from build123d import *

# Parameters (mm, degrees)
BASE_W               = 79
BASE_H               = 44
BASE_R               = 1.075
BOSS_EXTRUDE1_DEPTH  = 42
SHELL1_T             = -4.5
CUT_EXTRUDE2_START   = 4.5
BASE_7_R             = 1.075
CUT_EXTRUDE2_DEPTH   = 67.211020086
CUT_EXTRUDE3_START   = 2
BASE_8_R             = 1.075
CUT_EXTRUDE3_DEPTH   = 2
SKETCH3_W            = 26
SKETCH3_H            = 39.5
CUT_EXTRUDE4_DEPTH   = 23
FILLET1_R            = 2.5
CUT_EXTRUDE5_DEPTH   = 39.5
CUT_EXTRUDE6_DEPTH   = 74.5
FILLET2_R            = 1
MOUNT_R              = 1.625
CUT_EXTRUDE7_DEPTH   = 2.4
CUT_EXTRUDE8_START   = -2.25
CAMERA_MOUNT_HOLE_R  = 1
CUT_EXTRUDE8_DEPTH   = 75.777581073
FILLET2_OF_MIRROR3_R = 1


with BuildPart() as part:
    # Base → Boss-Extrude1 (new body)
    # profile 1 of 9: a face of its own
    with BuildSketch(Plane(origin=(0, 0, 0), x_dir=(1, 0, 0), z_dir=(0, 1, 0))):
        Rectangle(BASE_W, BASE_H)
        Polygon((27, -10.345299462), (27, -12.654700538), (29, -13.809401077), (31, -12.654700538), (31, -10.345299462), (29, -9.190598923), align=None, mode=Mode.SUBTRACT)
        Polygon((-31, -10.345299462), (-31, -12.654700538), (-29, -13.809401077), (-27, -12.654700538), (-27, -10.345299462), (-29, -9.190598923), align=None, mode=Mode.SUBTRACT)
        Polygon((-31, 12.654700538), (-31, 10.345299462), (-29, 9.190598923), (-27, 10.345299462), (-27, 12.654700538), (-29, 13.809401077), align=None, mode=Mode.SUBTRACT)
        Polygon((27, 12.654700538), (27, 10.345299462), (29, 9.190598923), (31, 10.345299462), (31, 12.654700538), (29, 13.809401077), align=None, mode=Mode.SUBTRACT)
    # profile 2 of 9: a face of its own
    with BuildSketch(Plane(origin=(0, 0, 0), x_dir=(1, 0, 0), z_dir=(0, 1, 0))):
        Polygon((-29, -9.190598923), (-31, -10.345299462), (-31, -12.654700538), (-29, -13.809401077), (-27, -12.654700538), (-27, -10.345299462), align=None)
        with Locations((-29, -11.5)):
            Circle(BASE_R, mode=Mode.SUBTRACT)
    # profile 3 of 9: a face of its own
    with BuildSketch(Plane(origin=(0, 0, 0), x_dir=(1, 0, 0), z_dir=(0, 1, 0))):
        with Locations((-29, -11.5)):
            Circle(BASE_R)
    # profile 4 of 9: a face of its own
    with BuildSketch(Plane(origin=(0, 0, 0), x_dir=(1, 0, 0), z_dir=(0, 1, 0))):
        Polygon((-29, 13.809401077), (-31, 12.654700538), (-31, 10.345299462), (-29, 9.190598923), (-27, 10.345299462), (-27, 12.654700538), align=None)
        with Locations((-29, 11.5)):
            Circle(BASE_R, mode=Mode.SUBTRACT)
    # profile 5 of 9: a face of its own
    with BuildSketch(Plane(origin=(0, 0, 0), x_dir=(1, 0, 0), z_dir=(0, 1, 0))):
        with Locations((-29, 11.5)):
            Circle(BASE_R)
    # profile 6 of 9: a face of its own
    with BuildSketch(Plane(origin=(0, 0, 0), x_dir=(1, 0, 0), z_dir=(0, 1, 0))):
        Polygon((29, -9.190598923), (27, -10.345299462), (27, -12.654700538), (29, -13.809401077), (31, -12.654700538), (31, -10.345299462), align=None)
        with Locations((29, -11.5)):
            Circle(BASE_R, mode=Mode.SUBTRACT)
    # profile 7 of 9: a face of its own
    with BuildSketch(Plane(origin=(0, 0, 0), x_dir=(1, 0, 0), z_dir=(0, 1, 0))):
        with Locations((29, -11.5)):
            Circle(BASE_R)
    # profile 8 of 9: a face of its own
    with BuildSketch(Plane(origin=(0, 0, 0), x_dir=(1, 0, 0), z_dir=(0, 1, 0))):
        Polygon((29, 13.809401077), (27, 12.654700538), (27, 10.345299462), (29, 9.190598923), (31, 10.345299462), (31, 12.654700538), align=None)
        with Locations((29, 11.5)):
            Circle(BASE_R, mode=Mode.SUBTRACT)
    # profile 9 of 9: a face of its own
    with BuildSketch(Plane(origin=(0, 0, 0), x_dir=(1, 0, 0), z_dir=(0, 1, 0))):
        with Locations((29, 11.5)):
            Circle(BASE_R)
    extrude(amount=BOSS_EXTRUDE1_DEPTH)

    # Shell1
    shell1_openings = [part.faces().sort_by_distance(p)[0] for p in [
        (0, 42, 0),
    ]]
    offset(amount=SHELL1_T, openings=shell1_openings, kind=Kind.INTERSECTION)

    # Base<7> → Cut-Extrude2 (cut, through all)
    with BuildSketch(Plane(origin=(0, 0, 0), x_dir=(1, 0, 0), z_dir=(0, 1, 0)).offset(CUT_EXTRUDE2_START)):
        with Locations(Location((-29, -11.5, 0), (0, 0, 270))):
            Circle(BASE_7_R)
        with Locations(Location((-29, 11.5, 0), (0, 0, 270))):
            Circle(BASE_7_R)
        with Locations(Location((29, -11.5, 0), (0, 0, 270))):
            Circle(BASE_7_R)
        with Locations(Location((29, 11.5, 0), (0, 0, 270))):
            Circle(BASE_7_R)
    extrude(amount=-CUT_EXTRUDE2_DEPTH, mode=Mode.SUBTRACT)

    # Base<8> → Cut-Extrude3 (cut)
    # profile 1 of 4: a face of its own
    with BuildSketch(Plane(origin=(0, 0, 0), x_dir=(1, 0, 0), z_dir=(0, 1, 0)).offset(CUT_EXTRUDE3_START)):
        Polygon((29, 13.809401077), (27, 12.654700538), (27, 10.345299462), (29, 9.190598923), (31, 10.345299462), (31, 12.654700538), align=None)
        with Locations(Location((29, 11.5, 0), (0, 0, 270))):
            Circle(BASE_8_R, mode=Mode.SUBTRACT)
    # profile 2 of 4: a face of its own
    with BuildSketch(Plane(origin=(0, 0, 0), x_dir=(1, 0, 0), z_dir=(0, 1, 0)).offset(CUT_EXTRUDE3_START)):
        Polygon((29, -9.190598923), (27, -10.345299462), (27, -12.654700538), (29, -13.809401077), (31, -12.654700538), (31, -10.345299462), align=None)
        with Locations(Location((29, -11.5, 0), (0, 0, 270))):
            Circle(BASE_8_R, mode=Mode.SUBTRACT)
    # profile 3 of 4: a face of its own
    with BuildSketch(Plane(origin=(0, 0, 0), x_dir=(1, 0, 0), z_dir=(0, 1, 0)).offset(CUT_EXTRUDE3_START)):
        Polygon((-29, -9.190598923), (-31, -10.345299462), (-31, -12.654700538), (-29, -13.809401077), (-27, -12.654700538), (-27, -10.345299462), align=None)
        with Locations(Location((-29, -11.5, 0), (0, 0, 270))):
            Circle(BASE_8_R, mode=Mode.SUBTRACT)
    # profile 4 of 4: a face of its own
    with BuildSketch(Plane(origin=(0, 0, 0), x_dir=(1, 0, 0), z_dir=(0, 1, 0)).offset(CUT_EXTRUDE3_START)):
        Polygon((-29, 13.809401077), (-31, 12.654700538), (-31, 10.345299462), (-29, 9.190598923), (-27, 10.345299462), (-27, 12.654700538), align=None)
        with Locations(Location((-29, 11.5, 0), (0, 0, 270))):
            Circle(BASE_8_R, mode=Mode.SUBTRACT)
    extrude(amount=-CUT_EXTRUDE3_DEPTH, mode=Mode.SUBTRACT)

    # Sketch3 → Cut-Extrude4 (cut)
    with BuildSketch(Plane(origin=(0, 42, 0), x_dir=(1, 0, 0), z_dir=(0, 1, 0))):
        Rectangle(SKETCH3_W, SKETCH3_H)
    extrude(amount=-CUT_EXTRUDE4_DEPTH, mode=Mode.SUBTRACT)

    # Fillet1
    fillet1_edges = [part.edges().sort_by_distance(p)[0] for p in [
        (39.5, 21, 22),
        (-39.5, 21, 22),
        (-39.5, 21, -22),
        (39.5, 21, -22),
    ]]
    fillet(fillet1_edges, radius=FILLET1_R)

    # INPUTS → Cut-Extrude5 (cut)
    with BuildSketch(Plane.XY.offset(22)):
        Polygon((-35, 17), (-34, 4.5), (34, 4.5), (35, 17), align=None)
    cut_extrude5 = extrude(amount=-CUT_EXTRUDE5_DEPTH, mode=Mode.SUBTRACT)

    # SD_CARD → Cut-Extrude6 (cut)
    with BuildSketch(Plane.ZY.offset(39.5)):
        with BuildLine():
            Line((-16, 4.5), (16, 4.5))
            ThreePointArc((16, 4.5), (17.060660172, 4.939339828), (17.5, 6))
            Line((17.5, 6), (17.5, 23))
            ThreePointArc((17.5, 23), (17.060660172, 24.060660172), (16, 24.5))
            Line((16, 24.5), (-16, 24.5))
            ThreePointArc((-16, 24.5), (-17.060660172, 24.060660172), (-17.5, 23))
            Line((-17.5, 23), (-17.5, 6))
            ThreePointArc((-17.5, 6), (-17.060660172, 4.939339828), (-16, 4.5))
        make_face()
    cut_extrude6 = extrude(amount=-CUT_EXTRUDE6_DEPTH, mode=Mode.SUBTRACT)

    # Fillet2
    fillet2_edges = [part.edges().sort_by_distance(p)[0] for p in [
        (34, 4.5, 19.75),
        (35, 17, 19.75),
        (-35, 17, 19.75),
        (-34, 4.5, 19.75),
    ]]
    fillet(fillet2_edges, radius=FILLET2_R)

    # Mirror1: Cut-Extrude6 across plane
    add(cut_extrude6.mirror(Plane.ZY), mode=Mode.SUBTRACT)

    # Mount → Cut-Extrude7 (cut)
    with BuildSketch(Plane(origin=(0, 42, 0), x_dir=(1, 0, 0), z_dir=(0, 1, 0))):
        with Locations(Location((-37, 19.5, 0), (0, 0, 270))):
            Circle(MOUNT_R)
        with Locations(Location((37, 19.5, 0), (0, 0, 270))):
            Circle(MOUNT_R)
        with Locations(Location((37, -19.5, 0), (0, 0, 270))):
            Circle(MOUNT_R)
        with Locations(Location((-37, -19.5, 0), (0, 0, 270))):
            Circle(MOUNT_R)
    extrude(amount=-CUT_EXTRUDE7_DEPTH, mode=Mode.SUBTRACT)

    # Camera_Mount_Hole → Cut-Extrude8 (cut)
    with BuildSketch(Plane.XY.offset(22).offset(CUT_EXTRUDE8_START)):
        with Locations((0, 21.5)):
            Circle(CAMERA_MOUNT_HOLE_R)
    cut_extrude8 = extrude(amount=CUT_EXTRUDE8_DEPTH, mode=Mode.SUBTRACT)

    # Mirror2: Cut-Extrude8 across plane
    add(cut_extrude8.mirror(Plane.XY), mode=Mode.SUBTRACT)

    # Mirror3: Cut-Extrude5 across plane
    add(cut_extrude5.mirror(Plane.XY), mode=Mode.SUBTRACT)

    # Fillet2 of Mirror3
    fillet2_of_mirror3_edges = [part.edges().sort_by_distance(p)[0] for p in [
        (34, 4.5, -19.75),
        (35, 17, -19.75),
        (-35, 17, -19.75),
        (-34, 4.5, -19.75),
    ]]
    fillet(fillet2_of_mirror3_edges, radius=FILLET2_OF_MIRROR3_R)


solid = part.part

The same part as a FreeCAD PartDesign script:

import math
import FreeCAD as App
import Part
import Sketcher
from FreeCAD import Vector
Q = App.Units.Quantity


def edges_at(feature, points):
    """Names of the edges that pass closest to the given points."""
    edges = feature.Shape.Edges
    near = lambda p: min(range(len(edges)), key=lambda i: edges[i].distToShape(Part.Vertex(*p))[0])
    return sorted({f"Edge{near(p) + 1}" for p in points})


def faces_at(feature, points):
    """Names of the faces that lie closest to the given points."""
    faces = feature.Shape.Faces
    near = lambda p: min(range(len(faces)), key=lambda i: faces[i].distToShape(Part.Vertex(*p))[0])
    return sorted({f"Face{near(p) + 1}" for p in points})

doc = App.newDocument("Part")
params = doc.addObject("Spreadsheet::Sheet", "Params")
for row, (alias, value) in enumerate([
    ("sketch1_width", "79 mm"),
    ("sketch1_height", "44 mm"),
    ("pad1_length", "42 mm"),
    ("thickness_wall", "4.5 mm"),
    ("sketch2_diameter", "2.15 mm"),
    ("sketch3_diameter", "2.15 mm"),
    ("pocket2_length", "2 mm"),
    ("sketch4_width", "26 mm"),
    ("sketch4_height", "39.5 mm"),
    ("pocket3_length", "23 mm"),
    ("fillet_radius", "2.5 mm"),
    ("sketch5_width", "68 mm"),
    ("sketch5_width2", "70 mm"),
    ("pocket4_length", "39.5 mm"),
    ("sketch6_radius", "1.5 mm"),
    ("sketch6_width", "17 mm"),
    ("sketch6_height", "32 mm"),
    ("pocket5_length", "74.5 mm"),
    ("fillet2_radius", "1 mm"),
    ("sketch7_diameter", "3.25 mm"),
    ("pocket6_length", "2.4 mm"),
    ("sketch8_diameter", "2 mm"),
    ("pocket7_length", "75.777581 mm"),
    ("fillet3_radius", "1 mm"),
], start=1):
    params.set(f"A{row}", alias)
    params.set(f"B{row}", "=" + value)
    params.setAlias(f"B{row}", alias)

body = doc.addObject("PartDesign::Body", "Body")

sketch1 = body.newObject("Sketcher::SketchObject", "Sketch")
sketch1.AttachmentSupport = (doc.getObject("XZ_Plane"), [""])
sketch1.MapMode = "FlatFace"
sketch1.addGeometry([
    Part.LineSegment(Vector(-40, -22, 0), Vector(-40, 22, 0)),
    Part.LineSegment(Vector(-40, 22, 0), Vector(40, 22, 0)),
    Part.LineSegment(Vector(40, 22, 0), Vector(40, -22, 0)),
    Part.LineSegment(Vector(40, -22, 0), Vector(-40, -22, 0)),
], False)
sketch1.addConstraint([
    Sketcher.Constraint("Coincident", 0, 2, 1, 1),
    Sketcher.Constraint("Coincident", 1, 2, 2, 1),
    Sketcher.Constraint("Coincident", 2, 2, 3, 1),
    Sketcher.Constraint("Coincident", 3, 2, 0, 1),
    Sketcher.Constraint("Vertical", 0),
    Sketcher.Constraint("Horizontal", 1),
    Sketcher.Constraint("Vertical", 2),
    Sketcher.Constraint("Horizontal", 3),
    Sketcher.Constraint("Symmetric", 0, 2, 2, 2, -1, 1),
    Sketcher.Constraint("DistanceX", 1, 1, 1, 2, 79.0),
    Sketcher.Constraint("DistanceY", 0, 1, 0, 2, 44.0),
])
sketch1.setExpression("Constraints[9]", "Params.sketch1_width")
sketch1.setExpression("Constraints[10]", "Params.sketch1_height")
pad1 = body.newObject("PartDesign::Pad", "Pad")
pad1.Profile = sketch1
pad1.setExpression("Length", "Params.pad1_length")
pad1.Reversed = True
doc.recompute()

thickness = body.newObject("PartDesign::Thickness", "Thickness")
thickness.Base = (pad1, faces_at(pad1, [(0, 42, 0)]))
thickness.setExpression("Value", "Params.thickness_wall")
thickness.Reversed = True
thickness.Join = "Intersection"

sketch2 = body.newObject("Sketcher::SketchObject", "Sketch001")
sketch2.AttachmentSupport = (doc.getObject("XZ_Plane"), [""])
sketch2.MapMode = "FlatFace"
sketch2.AttachmentOffset = App.Placement(Vector(0, 0, -4.5), App.Rotation())
sketch2.addGeometry([
    Part.Circle(Vector(-29, 11.5, 0), Vector(0, 0, 1), 1.1),
    Part.Circle(Vector(-29, -11.5, 0), Vector(0, 0, 1), 1.1),
    Part.Circle(Vector(29, 11.5, 0), Vector(0, 0, 1), 1.1),
    Part.Circle(Vector(29, -11.5, 0), Vector(0, 0, 1), 1.1),
], False)
sketch2.addConstraint([
    Sketcher.Constraint("Equal", 0, 1),
    Sketcher.Constraint("Equal", 1, 2),
    Sketcher.Constraint("Equal", 2, 3),
    Sketcher.Constraint("Symmetric", 1, 3, 2, 3, -1, 1),
    Sketcher.Constraint("Symmetric", 0, 3, 3, 3, -1, 1),
    Sketcher.Constraint("Symmetric", 0, 3, 2, 3, -2),
    Sketcher.Constraint("Diameter", 0, 2.15),
    Sketcher.Constraint("DistanceX", 0, 3, -1, 1, 29.0),
    Sketcher.Constraint("DistanceY", 1, 3, 0, 3, 23.0),
])
sketch2.setExpression("Constraints[6]", "Params.sketch2_diameter")
pocket1 = body.newObject("PartDesign::Pocket", "Pocket")
pocket1.Profile = sketch2
pocket1.Type = "ThroughAll"
pocket1.Reversed = True

sketch3 = body.newObject("Sketcher::SketchObject", "Sketch002")
sketch3.AttachmentSupport = (doc.getObject("XZ_Plane"), [""])
sketch3.MapMode = "FlatFace"
sketch3.AttachmentOffset = App.Placement(Vector(0, 0, -2), App.Rotation())
sketch3.addGeometry([
    Part.LineSegment(Vector(29, -13.8, 0), Vector(27, -12.7, 0)),
    Part.LineSegment(Vector(27, -12.7, 0), Vector(27, -10.3, 0)),
    Part.LineSegment(Vector(27, -10.3, 0), Vector(29, -9.2, 0)),
    Part.LineSegment(Vector(29, -9.2, 0), Vector(31, -10.3, 0)),
    Part.LineSegment(Vector(31, -10.3, 0), Vector(31, -12.7, 0)),
    Part.LineSegment(Vector(31, -12.7, 0), Vector(29, -13.8, 0)),
    Part.Circle(Vector(29, -11.5, 0), Vector(0, 0, 1), 1.1),
    Part.LineSegment(Vector(29, 9.2, 0), Vector(27, 10.3, 0)),
    Part.LineSegment(Vector(27, 10.3, 0), Vector(27, 12.7, 0)),
    Part.LineSegment(Vector(27, 12.7, 0), Vector(29, 13.8, 0)),
    Part.LineSegment(Vector(29, 13.8, 0), Vector(31, 12.7, 0)),
    Part.LineSegment(Vector(31, 12.7, 0), Vector(31, 10.3, 0)),
    Part.LineSegment(Vector(31, 10.3, 0), Vector(29, 9.2, 0)),
    Part.Circle(Vector(29, 11.5, 0), Vector(0, 0, 1), 1.1),
    Part.LineSegment(Vector(-29, 9.2, 0), Vector(-31, 10.3, 0)),
    Part.LineSegment(Vector(-31, 10.3, 0), Vector(-31, 12.7, 0)),
    Part.LineSegment(Vector(-31, 12.7, 0), Vector(-29, 13.8, 0)),
    Part.LineSegment(Vector(-29, 13.8, 0), Vector(-27, 12.7, 0)),
    Part.LineSegment(Vector(-27, 12.7, 0), Vector(-27, 10.3, 0)),
    Part.LineSegment(Vector(-27, 10.3, 0), Vector(-29, 9.2, 0)),
    Part.Circle(Vector(-29, 11.5, 0), Vector(0, 0, 1), 1.1),
    Part.LineSegment(Vector(-29, -13.8, 0), Vector(-31, -12.7, 0)),
    Part.LineSegment(Vector(-31, -12.7, 0), Vector(-31, -10.3, 0)),
    Part.LineSegment(Vector(-31, -10.3, 0), Vector(-29, -9.2, 0)),
    Part.LineSegment(Vector(-29, -9.2, 0), Vector(-27, -10.3, 0)),
    Part.LineSegment(Vector(-27, -10.3, 0), Vector(-27, -12.7, 0)),
    Part.LineSegment(Vector(-27, -12.7, 0), Vector(-29, -13.8, 0)),
    Part.Circle(Vector(-29, -11.5, 0), Vector(0, 0, 1), 1.1),
], False)
sketch3.addConstraint([
    Sketcher.Constraint("Coincident", 0, 2, 1, 1),
    Sketcher.Constraint("Coincident", 1, 2, 2, 1),
    Sketcher.Constraint("Coincident", 2, 2, 3, 1),
    Sketcher.Constraint("Coincident", 3, 2, 4, 1),
    Sketcher.Constraint("Coincident", 4, 2, 5, 1),
    Sketcher.Constraint("Coincident", 5, 2, 0, 1),
    Sketcher.Constraint("Coincident", 7, 2, 8, 1),
    Sketcher.Constraint("Coincident", 8, 2, 9, 1),
    Sketcher.Constraint("Coincident", 9, 2, 10, 1),
    Sketcher.Constraint("Coincident", 10, 2, 11, 1),
    Sketcher.Constraint("Coincident", 11, 2, 12, 1),
    Sketcher.Constraint("Coincident", 12, 2, 7, 1),
    Sketcher.Constraint("Coincident", 14, 2, 15, 1),
    Sketcher.Constraint("Coincident", 15, 2, 16, 1),
    Sketcher.Constraint("Coincident", 16, 2, 17, 1),
    Sketcher.Constraint("Coincident", 17, 2, 18, 1),
    Sketcher.Constraint("Coincident", 18, 2, 19, 1),
    Sketcher.Constraint("Coincident", 19, 2, 14, 1),
    Sketcher.Constraint("Coincident", 21, 2, 22, 1),
    Sketcher.Constraint("Coincident", 22, 2, 23, 1),
    Sketcher.Constraint("Coincident", 23, 2, 24, 1),
    Sketcher.Constraint("Coincident", 24, 2, 25, 1),
    Sketcher.Constraint("Coincident", 25, 2, 26, 1),
    Sketcher.Constraint("Coincident", 26, 2, 21, 1),
    Sketcher.Constraint("Vertical", 1),
    Sketcher.Constraint("Vertical", 4),
    Sketcher.Constraint("Vertical", 8),
    Sketcher.Constraint("Vertical", 11),
    Sketcher.Constraint("Vertical", 15),
    Sketcher.Constraint("Vertical", 18),
    Sketcher.Constraint("Vertical", 22),
    Sketcher.Constraint("Vertical", 25),
    Sketcher.Constraint("Equal", 6, 13),
    Sketcher.Constraint("Equal", 13, 20),
    Sketcher.Constraint("Equal", 20, 27),
    Sketcher.Constraint("Symmetric", 6, 3, 20, 3, -1, 1),
    Sketcher.Constraint("Symmetric", 13, 3, 27, 3, -1, 1),
    Sketcher.Constraint("Symmetric", 3, 2, 14, 2, -1, 1),
    Sketcher.Constraint("Symmetric", 5, 2, 16, 2, -1, 1),
    Sketcher.Constraint("Symmetric", 0, 2, 17, 2, -1, 1),
    Sketcher.Constraint("Symmetric", 2, 2, 19, 2, -1, 1),
    Sketcher.Constraint("Symmetric", 10, 2, 21, 2, -1, 1),
    Sketcher.Constraint("Symmetric", 12, 2, 23, 2, -1, 1),
    Sketcher.Constraint("Symmetric", 7, 2, 24, 2, -1, 1),
    Sketcher.Constraint("Symmetric", 9, 2, 26, 2, -1, 1),
    Sketcher.Constraint("Symmetric", 13, 3, 20, 3, -2),
    Sketcher.Constraint("Symmetric", 11, 2, 14, 2, -2),
    Sketcher.Constraint("Symmetric", 9, 2, 16, 2, -2),
    Sketcher.Constraint("Symmetric", 8, 2, 17, 2, -2),
    Sketcher.Constraint("Symmetric", 12, 2, 19, 2, -2),
    Sketcher.Constraint("Parallel", 0, 3),
    Sketcher.Constraint("Parallel", 2, 5),
    Sketcher.Constraint("Parallel", 3, 7),
    Sketcher.Constraint("Parallel", 5, 9),
    Sketcher.Constraint("Parallel", 7, 10),
    Sketcher.Constraint("Parallel", 12, 16),
    Sketcher.Constraint("Parallel", 16, 19),
    Sketcher.Constraint("Parallel", 19, 23),
    Sketcher.Constraint("Parallel", 23, 26),
    Sketcher.Constraint("Horizontal", 1, 2, 3, 2),
    Sketcher.Constraint("Horizontal", 0, 2, 4, 2),
    Sketcher.Constraint("Vertical", 13, 3, 2, 2),
    Sketcher.Constraint("Diameter", 6, 2.15),
    Sketcher.Constraint("Angle", 0, Q("150 deg")),
    Sketcher.Constraint("DistanceX", -1, 1, 6, 3, 29.0),
    Sketcher.Constraint("DistanceX", -1, 1, 0, 2, 27.0),
    Sketcher.Constraint("DistanceY", 6, 3, 13, 3, 23.0),
    Sketcher.Constraint("DistanceY", 1, 2, 8, 2, 23.0),
    Sketcher.Constraint("DistanceY", 1, 1, 1, 2, 2.309401),
])
sketch3.setExpression("Constraints[62]", "Params.sketch3_diameter")
pocket2 = body.newObject("PartDesign::Pocket", "Pocket001")
pocket2.Profile = sketch3
pocket2.setExpression("Length", "Params.pocket2_length")
pocket2.Reversed = True

sketch4 = body.newObject("Sketcher::SketchObject", "Sketch003")
sketch4.AttachmentSupport = (doc.getObject("XZ_Plane"), [""])
sketch4.MapMode = "FlatFace"
sketch4.AttachmentOffset = App.Placement(Vector(0, 0, -42), App.Rotation())
sketch4.addGeometry([
    Part.LineSegment(Vector(-13, -20, 0), Vector(-13, 20, 0)),
    Part.LineSegment(Vector(-13, 20, 0), Vector(13, 20, 0)),
    Part.LineSegment(Vector(13, 20, 0), Vector(13, -20, 0)),
    Part.LineSegment(Vector(13, -20, 0), Vector(-13, -20, 0)),
], False)
sketch4.addConstraint([
    Sketcher.Constraint("Coincident", 0, 2, 1, 1),
    Sketcher.Constraint("Coincident", 1, 2, 2, 1),
    Sketcher.Constraint("Coincident", 2, 2, 3, 1),
    Sketcher.Constraint("Coincident", 3, 2, 0, 1),
    Sketcher.Constraint("Vertical", 0),
    Sketcher.Constraint("Horizontal", 1),
    Sketcher.Constraint("Vertical", 2),
    Sketcher.Constraint("Horizontal", 3),
    Sketcher.Constraint("Symmetric", 0, 2, 2, 2, -1, 1),
    Sketcher.Constraint("DistanceX", 1, 1, 1, 2, 26.0),
    Sketcher.Constraint("DistanceY", 0, 1, 0, 2, 39.5),
])
sketch4.setExpression("Constraints[9]", "Params.sketch4_width")
sketch4.setExpression("Constraints[10]", "Params.sketch4_height")
pocket3 = body.newObject("PartDesign::Pocket", "Pocket002")
pocket3.Profile = sketch4
pocket3.setExpression("Length", "Params.pocket3_length")
pocket3.Reversed = True
doc.recompute()

fillet = body.newObject("PartDesign::Fillet", "Fillet")
fillet.Base = (pocket3, edges_at(pocket3, [
    (39.5, 21, 22),
    (-39.5, 21, 22),
    (-39.5, 21, -22),
    (39.5, 21, -22),
]))
fillet.setExpression("Radius", "Params.fillet_radius")

sketch5 = body.newObject("Sketcher::SketchObject", "Sketch004")
sketch5.AttachmentSupport = (doc.getObject("XY_Plane"), [""])
sketch5.MapMode = "FlatFace"
sketch5.AttachmentOffset = App.Placement(Vector(0, 0, 22), App.Rotation())
sketch5.addGeometry([
    Part.LineSegment(Vector(-35, 17, 0), Vector(-34, 4, 0)),
    Part.LineSegment(Vector(-34, 4, 0), Vector(34, 4, 0)),
    Part.LineSegment(Vector(34, 4, 0), Vector(35, 17, 0)),
    Part.LineSegment(Vector(35, 17, 0), Vector(-35, 17, 0)),
], False)
sketch5.addConstraint([
    Sketcher.Constraint("Coincident", 0, 2, 1, 1),
    Sketcher.Constraint("Coincident", 1, 2, 2, 1),
    Sketcher.Constraint("Coincident", 2, 2, 3, 1),
    Sketcher.Constraint("Coincident", 3, 2, 0, 1),
    Sketcher.Constraint("Horizontal", 1),
    Sketcher.Constraint("Horizontal", 3),
    Sketcher.Constraint("Equal", 0, 2),
    Sketcher.Constraint("DistanceX", 1, 1, 1, 2, 68.0),
    Sketcher.Constraint("DistanceX", 3, 2, 3, 1, 70.0),
    Sketcher.Constraint("DistanceX", 0, 2, -1, 1, 34.0),
    Sketcher.Constraint("DistanceY", -1, 1, 2, 2, 17.0),
    Sketcher.Constraint("DistanceY", -1, 1, 0, 2, 4.5),
])
sketch5.setExpression("Constraints[7]", "Params.sketch5_width")
sketch5.setExpression("Constraints[8]", "Params.sketch5_width2")
pocket4 = body.newObject("PartDesign::Pocket", "Pocket003")
pocket4.Profile = sketch5
pocket4.setExpression("Length", "Params.pocket4_length")

sketch6 = body.newObject("Sketcher::SketchObject", "Sketch005")
sketch6.AttachmentSupport = (doc.getObject("YZ_Plane"), [""])
sketch6.MapMode = "FlatFace"
sketch6.AttachmentOffset = App.Placement(Vector(0, 0, -39.5), App.Rotation())
sketch6.addGeometry([
    Part.LineSegment(Vector(4.5, -16, 0), Vector(4.5, 16, 0)),
    Part.ArcOfCircle(Part.Circle(Vector(6, 16, 0), Vector(0, 0, 1), 1.5), math.radians(90), math.radians(180)),
    Part.LineSegment(Vector(6, 17.5, 0), Vector(23, 17.5, 0)),
    Part.ArcOfCircle(Part.Circle(Vector(23, 16, 0), Vector(0, 0, 1), 1.5), math.radians(0), math.radians(90)),
    Part.LineSegment(Vector(24.5, 16, 0), Vector(24.5, -16, 0)),
    Part.ArcOfCircle(Part.Circle(Vector(23, -16, 0), Vector(0, 0, 1), 1.5), math.radians(-90), math.radians(0)),
    Part.LineSegment(Vector(23, -17.5, 0), Vector(6, -17.5, 0)),
    Part.ArcOfCircle(Part.Circle(Vector(6, -16, 0), Vector(0, 0, 1), 1.5), math.radians(180), math.radians(270)),
], False)
sketch6.addConstraint([
    Sketcher.Constraint("Tangent", 0, 2, 1, 2),
    Sketcher.Constraint("Tangent", 1, 1, 2, 1),
    Sketcher.Constraint("Tangent", 2, 2, 3, 2),
    Sketcher.Constraint("Tangent", 3, 1, 4, 1),
    Sketcher.Constraint("Tangent", 4, 2, 5, 2),
    Sketcher.Constraint("Tangent", 5, 1, 6, 1),
    Sketcher.Constraint("Tangent", 6, 2, 7, 2),
    Sketcher.Constraint("Tangent", 7, 1, 0, 1),
    Sketcher.Constraint("Vertical", 0),
    Sketcher.Constraint("Horizontal", 2),
    Sketcher.Constraint("Vertical", 4),
    Sketcher.Constraint("Horizontal", 6),
    Sketcher.Constraint("Equal", 1, 3),
    Sketcher.Constraint("Equal", 3, 5),
    Sketcher.Constraint("Equal", 5, 7),
    Sketcher.Constraint("Radius", 1, 1.5),
    Sketcher.Constraint("DistanceX", 2, 1, 2, 2, 17.0),
    Sketcher.Constraint("DistanceY", 0, 1, 0, 2, 32.0),
    Sketcher.Constraint("DistanceX", -1, 1, 1, 3, 6.0),
    Sketcher.Constraint("DistanceY", -1, 1, 1, 3, 16.0),
])
sketch6.setExpression("Constraints[15]", "Params.sketch6_radius")
sketch6.setExpression("Constraints[16]", "Params.sketch6_width")
sketch6.setExpression("Constraints[17]", "Params.sketch6_height")
pocket5 = body.newObject("PartDesign::Pocket", "Pocket004")
pocket5.Profile = sketch6
pocket5.setExpression("Length", "Params.pocket5_length")
pocket5.Reversed = True
doc.recompute()

fillet2 = body.newObject("PartDesign::Fillet", "Fillet001")
fillet2.Base = (pocket5, edges_at(pocket5, [
    (34, 4.5, 19.75),
    (35, 17, 19.75),
    (-35, 17, 19.75),
    (-34, 4.5, 19.75),
]))
fillet2.setExpression("Radius", "Params.fillet2_radius")
doc.recompute()

mirrored = body.newObject("PartDesign::Mirrored", "Mirrored")
mirrored.Originals = [pocket5]
mirrored.MirrorPlane = (doc.getObject("YZ_Plane"), [""])
body.Tip = mirrored

sketch7 = body.newObject("Sketcher::SketchObject", "Sketch006")
sketch7.AttachmentSupport = (doc.getObject("XZ_Plane"), [""])
sketch7.MapMode = "FlatFace"
sketch7.AttachmentOffset = App.Placement(Vector(0, 0, -42), App.Rotation())
sketch7.addGeometry([
    Part.Circle(Vector(-37, -19.5, 0), Vector(0, 0, 1), 1.6),
    Part.Circle(Vector(37, -19.5, 0), Vector(0, 0, 1), 1.6),
    Part.Circle(Vector(37, 19.5, 0), Vector(0, 0, 1), 1.6),
    Part.Circle(Vector(-37, 19.5, 0), Vector(0, 0, 1), 1.6),
], False)
sketch7.addConstraint([
    Sketcher.Constraint("Equal", 0, 1),
    Sketcher.Constraint("Equal", 1, 2),
    Sketcher.Constraint("Equal", 2, 3),
    Sketcher.Constraint("Symmetric", 0, 3, 2, 3, -1, 1),
    Sketcher.Constraint("Symmetric", 1, 3, 3, 3, -1, 1),
    Sketcher.Constraint("Symmetric", 0, 3, 1, 3, -2),
    Sketcher.Constraint("Diameter", 0, 3.25),
    Sketcher.Constraint("DistanceX", 0, 3, -1, 1, 37.0),
    Sketcher.Constraint("DistanceY", 1, 3, 2, 3, 39.0),
])
sketch7.setExpression("Constraints[6]", "Params.sketch7_diameter")
pocket6 = body.newObject("PartDesign::Pocket", "Pocket005")
pocket6.Profile = sketch7
pocket6.setExpression("Length", "Params.pocket6_length")
pocket6.Reversed = True

sketch8 = body.newObject("Sketcher::SketchObject", "Sketch007")
sketch8.AttachmentSupport = (doc.getObject("XY_Plane"), [""])
sketch8.MapMode = "FlatFace"
sketch8.AttachmentOffset = App.Placement(Vector(0, 0, 19.75), App.Rotation())
sketch8.addGeometry(Part.Circle(Vector(0, 21.5, 0), Vector(0, 0, 1), 1), False)
sketch8.addConstraint([
    Sketcher.Constraint("PointOnObject", 0, 3, -2),
    Sketcher.Constraint("Diameter", 0, 2.0),
    Sketcher.Constraint("DistanceY", -1, 1, 0, 3, 21.5),
])
sketch8.setExpression("Constraints[1]", "Params.sketch8_diameter")
pocket7 = body.newObject("PartDesign::Pocket", "Pocket006")
pocket7.Profile = sketch8
pocket7.setExpression("Length", "Params.pocket7_length")
pocket7.Reversed = True
doc.recompute()

mirrored2 = body.newObject("PartDesign::Mirrored", "Mirrored001")
mirrored2.Originals = [pocket7]
mirrored2.MirrorPlane = (doc.getObject("XY_Plane"), [""])
body.Tip = mirrored2
doc.recompute()

mirrored3 = body.newObject("PartDesign::Mirrored", "Mirrored002")
mirrored3.Originals = [pocket4]
mirrored3.MirrorPlane = (doc.getObject("XY_Plane"), [""])
body.Tip = mirrored3
doc.recompute()

fillet3 = body.newObject("PartDesign::Fillet", "Fillet002")
fillet3.Base = (mirrored3, edges_at(mirrored3, [
    (34, 4.5, -19.75),
    (35, 17, -19.75),
    (-35, 17, -19.75),
    (-34, 4.5, -19.75),
]))
fillet3.setExpression("Radius", "Params.fillet3_radius")

doc.recompute()
